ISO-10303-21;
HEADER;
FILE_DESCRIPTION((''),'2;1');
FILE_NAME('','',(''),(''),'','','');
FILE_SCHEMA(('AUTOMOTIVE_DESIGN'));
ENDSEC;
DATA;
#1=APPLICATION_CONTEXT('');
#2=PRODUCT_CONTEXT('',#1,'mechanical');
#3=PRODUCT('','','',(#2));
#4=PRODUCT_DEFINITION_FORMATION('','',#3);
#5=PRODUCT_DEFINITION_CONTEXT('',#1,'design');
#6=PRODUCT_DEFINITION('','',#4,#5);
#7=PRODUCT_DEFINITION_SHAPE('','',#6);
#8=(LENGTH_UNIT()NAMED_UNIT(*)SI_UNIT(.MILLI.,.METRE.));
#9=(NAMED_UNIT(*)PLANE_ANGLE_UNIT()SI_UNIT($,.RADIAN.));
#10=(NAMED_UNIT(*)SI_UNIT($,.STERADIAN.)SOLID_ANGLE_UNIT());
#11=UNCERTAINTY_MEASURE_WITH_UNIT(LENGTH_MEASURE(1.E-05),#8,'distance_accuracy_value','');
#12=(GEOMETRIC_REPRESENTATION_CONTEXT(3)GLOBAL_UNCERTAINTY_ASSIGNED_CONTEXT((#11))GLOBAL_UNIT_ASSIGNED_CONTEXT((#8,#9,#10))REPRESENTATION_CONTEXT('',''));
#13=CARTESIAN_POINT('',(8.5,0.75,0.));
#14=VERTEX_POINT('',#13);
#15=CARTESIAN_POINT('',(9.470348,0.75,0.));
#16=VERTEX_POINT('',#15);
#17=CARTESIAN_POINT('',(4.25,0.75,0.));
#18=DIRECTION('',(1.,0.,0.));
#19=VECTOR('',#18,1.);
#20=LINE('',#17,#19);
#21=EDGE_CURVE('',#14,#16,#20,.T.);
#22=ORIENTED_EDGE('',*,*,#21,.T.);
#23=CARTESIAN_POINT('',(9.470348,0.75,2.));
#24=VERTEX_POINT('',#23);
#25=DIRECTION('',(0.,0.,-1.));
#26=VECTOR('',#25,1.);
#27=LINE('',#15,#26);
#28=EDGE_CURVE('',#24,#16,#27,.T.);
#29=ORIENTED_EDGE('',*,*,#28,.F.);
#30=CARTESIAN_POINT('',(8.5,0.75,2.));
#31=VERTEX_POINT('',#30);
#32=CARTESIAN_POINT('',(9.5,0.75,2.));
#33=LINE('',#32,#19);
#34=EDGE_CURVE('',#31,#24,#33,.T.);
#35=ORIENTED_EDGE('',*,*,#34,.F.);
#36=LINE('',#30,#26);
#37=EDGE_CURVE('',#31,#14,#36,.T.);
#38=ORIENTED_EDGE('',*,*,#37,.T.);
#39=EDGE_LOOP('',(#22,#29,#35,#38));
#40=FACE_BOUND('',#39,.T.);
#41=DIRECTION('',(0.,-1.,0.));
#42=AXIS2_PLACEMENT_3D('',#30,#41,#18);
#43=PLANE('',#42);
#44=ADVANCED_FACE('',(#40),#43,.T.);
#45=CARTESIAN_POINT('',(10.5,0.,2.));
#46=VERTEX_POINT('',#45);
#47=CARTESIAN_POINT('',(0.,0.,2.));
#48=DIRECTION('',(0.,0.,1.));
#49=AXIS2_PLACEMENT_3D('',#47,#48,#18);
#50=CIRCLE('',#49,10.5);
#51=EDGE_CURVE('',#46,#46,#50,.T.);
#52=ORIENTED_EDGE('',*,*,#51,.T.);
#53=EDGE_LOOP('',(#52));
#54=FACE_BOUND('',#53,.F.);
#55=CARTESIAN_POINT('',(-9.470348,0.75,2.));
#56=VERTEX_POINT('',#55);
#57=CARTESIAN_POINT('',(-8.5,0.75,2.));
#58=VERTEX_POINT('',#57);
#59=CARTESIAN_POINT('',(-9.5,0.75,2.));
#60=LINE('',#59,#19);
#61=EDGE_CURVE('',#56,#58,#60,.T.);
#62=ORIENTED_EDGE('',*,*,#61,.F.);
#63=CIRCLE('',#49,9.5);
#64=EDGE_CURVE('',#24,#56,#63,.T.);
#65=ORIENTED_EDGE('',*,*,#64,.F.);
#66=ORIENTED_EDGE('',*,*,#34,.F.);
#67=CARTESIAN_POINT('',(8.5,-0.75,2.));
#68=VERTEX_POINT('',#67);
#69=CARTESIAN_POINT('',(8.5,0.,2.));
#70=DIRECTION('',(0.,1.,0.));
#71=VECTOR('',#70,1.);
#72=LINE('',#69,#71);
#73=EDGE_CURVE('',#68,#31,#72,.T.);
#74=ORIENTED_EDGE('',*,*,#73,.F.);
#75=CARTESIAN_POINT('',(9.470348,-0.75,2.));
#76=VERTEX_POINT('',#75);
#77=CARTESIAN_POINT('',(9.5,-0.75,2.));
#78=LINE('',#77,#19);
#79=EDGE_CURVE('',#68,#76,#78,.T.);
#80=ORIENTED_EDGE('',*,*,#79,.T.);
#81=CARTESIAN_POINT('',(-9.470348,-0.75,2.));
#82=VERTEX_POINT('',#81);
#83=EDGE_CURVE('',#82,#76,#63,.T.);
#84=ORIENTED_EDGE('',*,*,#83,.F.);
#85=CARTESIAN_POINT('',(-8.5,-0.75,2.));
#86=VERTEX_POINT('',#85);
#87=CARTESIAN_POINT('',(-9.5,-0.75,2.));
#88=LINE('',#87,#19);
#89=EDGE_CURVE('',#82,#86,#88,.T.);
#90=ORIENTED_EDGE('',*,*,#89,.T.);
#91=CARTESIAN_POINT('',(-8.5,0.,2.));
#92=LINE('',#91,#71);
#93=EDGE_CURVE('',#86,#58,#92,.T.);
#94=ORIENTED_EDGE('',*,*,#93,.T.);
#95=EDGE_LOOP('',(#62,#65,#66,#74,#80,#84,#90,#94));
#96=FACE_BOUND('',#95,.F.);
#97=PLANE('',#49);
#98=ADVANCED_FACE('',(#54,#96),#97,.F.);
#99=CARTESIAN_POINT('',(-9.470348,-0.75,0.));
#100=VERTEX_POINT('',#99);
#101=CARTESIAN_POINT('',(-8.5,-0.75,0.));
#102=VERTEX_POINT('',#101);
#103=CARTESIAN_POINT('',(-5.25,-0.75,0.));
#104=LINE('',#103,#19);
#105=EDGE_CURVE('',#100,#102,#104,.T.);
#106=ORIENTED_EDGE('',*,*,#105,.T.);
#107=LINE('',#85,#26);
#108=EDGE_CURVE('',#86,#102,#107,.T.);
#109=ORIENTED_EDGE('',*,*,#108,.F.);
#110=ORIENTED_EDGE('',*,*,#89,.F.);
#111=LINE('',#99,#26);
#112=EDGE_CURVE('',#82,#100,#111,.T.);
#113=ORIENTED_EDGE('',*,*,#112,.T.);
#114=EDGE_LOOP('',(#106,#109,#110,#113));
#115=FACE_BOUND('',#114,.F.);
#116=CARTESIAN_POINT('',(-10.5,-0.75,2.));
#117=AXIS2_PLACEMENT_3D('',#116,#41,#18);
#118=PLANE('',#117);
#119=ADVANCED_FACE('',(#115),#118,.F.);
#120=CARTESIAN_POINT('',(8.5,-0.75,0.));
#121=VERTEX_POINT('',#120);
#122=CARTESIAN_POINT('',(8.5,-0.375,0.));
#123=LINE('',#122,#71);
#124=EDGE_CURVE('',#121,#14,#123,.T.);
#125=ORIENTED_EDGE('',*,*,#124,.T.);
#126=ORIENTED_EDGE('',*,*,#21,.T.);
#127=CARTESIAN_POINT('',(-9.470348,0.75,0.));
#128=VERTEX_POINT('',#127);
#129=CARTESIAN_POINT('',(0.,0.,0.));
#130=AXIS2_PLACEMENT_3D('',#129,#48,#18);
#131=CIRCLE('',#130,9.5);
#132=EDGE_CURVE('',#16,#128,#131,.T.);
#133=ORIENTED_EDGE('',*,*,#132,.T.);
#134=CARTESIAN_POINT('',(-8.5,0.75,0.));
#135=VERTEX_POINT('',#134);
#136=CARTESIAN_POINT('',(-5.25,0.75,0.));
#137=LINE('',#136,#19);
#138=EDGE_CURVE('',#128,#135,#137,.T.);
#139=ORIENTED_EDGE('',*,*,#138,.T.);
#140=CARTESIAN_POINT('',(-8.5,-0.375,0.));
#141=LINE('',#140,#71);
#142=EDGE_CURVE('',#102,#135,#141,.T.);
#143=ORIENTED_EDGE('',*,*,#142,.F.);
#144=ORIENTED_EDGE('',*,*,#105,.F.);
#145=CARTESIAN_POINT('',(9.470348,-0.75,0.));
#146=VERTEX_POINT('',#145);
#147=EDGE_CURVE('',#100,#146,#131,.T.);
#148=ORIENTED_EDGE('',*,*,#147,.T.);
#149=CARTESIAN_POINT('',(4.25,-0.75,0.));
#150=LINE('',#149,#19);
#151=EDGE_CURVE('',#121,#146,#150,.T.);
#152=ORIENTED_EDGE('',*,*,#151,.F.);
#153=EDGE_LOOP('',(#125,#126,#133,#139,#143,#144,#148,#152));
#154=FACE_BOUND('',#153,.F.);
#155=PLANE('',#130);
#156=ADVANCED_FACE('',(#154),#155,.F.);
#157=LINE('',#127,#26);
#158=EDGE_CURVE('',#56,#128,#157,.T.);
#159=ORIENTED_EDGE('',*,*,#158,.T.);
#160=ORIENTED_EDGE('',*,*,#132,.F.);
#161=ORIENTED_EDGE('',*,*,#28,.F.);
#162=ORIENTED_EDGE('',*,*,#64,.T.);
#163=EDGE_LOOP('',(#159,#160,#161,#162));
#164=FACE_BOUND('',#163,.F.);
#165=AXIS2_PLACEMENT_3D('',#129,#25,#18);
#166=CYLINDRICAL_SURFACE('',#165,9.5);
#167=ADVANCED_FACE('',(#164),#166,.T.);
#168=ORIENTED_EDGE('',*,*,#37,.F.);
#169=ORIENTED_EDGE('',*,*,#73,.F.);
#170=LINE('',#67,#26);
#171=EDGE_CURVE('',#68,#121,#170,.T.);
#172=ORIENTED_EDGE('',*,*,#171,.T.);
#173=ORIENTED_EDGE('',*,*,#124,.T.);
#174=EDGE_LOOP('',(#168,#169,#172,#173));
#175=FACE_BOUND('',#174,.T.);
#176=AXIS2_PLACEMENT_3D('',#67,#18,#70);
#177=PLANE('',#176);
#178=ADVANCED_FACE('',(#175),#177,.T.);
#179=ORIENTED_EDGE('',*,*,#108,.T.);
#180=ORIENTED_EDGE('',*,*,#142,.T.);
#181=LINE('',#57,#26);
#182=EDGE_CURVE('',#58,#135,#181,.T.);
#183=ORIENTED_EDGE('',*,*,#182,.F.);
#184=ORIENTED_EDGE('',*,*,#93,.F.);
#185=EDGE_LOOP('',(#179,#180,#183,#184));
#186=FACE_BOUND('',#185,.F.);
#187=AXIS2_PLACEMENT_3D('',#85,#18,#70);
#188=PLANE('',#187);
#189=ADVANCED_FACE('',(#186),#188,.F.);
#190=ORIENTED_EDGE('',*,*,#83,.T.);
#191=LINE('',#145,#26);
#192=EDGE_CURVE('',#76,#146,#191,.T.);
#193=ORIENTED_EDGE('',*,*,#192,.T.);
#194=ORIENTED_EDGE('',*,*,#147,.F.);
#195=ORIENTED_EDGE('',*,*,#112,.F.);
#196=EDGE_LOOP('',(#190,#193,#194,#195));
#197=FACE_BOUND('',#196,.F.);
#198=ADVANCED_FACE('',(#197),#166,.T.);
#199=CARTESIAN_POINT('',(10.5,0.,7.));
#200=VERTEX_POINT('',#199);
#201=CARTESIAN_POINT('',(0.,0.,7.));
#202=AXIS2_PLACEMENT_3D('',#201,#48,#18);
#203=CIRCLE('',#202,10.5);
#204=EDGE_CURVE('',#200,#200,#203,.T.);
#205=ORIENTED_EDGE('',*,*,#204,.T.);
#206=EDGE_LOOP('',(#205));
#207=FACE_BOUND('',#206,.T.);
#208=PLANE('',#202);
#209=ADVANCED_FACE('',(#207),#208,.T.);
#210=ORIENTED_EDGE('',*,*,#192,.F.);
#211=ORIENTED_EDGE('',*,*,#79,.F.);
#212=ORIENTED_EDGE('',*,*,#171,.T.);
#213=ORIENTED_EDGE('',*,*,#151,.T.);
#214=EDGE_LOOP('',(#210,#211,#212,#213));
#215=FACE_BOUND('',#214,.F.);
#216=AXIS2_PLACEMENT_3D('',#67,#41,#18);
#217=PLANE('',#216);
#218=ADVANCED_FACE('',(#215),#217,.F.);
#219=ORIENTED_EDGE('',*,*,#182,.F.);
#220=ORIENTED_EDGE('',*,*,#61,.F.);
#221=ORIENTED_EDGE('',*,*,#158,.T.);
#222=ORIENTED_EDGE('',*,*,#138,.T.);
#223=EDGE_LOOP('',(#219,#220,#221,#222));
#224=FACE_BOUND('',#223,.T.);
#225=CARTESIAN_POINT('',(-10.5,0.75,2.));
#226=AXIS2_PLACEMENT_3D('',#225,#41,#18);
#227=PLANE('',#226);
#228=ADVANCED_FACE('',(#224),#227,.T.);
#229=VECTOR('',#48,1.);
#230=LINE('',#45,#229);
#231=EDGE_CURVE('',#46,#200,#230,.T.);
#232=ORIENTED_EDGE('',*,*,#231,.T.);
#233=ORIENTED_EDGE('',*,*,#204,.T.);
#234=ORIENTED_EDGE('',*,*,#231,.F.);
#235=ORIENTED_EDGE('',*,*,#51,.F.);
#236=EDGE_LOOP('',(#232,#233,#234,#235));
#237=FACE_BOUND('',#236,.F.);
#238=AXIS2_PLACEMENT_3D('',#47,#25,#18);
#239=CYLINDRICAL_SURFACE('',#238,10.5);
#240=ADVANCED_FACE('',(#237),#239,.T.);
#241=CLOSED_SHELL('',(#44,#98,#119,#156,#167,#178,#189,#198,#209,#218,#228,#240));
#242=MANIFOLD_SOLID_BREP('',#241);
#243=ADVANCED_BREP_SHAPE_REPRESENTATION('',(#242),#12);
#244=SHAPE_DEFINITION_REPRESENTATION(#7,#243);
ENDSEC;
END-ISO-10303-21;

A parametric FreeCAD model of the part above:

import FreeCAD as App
import Part
import Sketcher
from FreeCAD import Vector
Q = App.Units.Quantity

doc = App.newDocument("Part")
body = doc.addObject("PartDesign::Body", "Body")

sketch1 = doc.addObject("Sketcher::SketchObject", "Sketch")
body.addObject(sketch1)
sketch1.AttachmentSupport = (doc.XY_Plane, [""])
sketch1.MapMode = "FlatFace"
sketch1.addGeometry(Part.Circle(Vector(0, 0, 0), Vector(0, 0, 1), 10), False)
sketch1.addConstraint(Sketcher.Constraint("Coincident", 0, 3, -1, 1))
sketch1.addConstraint(Sketcher.Constraint("Diameter", 0, Q("19 mm")))
pad1 = doc.addObject("PartDesign::Pad", "Pad")
body.addObject(pad1)
pad1.Profile = sketch1
pad1.Length = 2

sketch2 = doc.addObject("Sketcher::SketchObject", "Sketch001")
body.addObject(sketch2)
sketch2.AttachmentSupport = (doc.XY_Plane, [""])
sketch2.MapMode = "FlatFace"
sketch2.AttachmentOffset = App.Placement(Vector(0, 0, 2), App.Rotation())
sketch2.addGeometry(Part.LineSegment(Vector(8.5, 0.8, 0), Vector(8.5, -0.8, 0)), False)
sketch2.addGeometry(Part.LineSegment(Vector(8.5, -0.8, 0), Vector(10.5, -0.8, 0)), False)
sketch2.addGeometry(Part.LineSegment(Vector(10.5, -0.8, 0), Vector(10.5, 0.8, 0)), False)
sketch2.addGeometry(Part.LineSegment(Vector(10.5, 0.8, 0), Vector(8.5, 0.8, 0)), False)
sketch2.addGeometry(Part.LineSegment(Vector(-10.5, 0.8, 0), Vector(-10.5, -0.8, 0)), False)
sketch2.addGeometry(Part.LineSegment(Vector(-10.5, -0.8, 0), Vector(-8.5, -0.8, 0)), False)
sketch2.addGeometry(Part.LineSegment(Vector(-8.5, -0.8, 0), Vector(-8.5, 0.8, 0)), False)
sketch2.addGeometry(Part.LineSegment(Vector(-8.5, 0.8, 0), Vector(-10.5, 0.8, 0)), False)
sketch2.addConstraint(Sketcher.Constraint("Coincident", 0, 2, 1, 1))
sketch2.addConstraint(Sketcher.Constraint("Coincident", 1, 2, 2, 1))
sketch2.addConstraint(Sketcher.Constraint("Coincident", 2, 2, 3, 1))
sketch2.addConstraint(Sketcher.Constraint("Coincident", 3, 2, 0, 1))
sketch2.addConstraint(Sketcher.Constraint("Coincident", 4, 2, 5, 1))
sketch2.addConstraint(Sketcher.Constraint("Coincident", 5, 2, 6, 1))
sketch2.addConstraint(Sketcher.Constraint("Coincident", 6, 2, 7, 1))
sketch2.addConstraint(Sketcher.Constraint("Coincident", 7, 2, 4, 1))
sketch2.addConstraint(Sketcher.Constraint("Vertical", 0))
sketch2.addConstraint(Sketcher.Constraint("Horizontal", 1))
sketch2.addConstraint(Sketcher.Constraint("Vertical", 2))
sketch2.addConstraint(Sketcher.Constraint("Horizontal", 3))
sketch2.addConstraint(Sketcher.Constraint("Vertical", 4))
sketch2.addConstraint(Sketcher.Constraint("Horizontal", 5))
sketch2.addConstraint(Sketcher.Constraint("Vertical", 6))
sketch2.addConstraint(Sketcher.Constraint("Horizontal", 7))
sketch2.addConstraint(Sketcher.Constraint("Symmetric", 2, 2, 4, 2, -1, 1))
sketch2.addConstraint(Sketcher.Constraint("Symmetric", 0, 2, 6, 2, -1, 1))
sketch2.addConstraint(Sketcher.Constraint("Horizontal", 1, 2, 4, 2))
sketch2.addConstraint(Sketcher.Constraint("DistanceX", 1, 1, 1, 2, Q("2 mm")))
sketch2.addConstraint(Sketcher.Constraint("DistanceY", 0, 2, 0, 1, Q("1.5 mm")))
sketch2.addConstraint(Sketcher.Constraint("DistanceX", 4, 2, 0, 2, Q("19 mm")))
pocket1 = doc.addObject("PartDesign::Pocket", "Pocket")
body.addObject(pocket1)
pocket1.Profile = sketch2
pocket1.Length = 5

sketch3 = doc.addObject("Sketcher::SketchObject", "Sketch002")
body.addObject(sketch3)
sketch3.AttachmentSupport = (doc.XY_Plane, [""])
sketch3.MapMode = "FlatFace"
sketch3.AttachmentOffset = App.Placement(Vector(0, 0, 2), App.Rotation())
sketch3.addGeometry(Part.Circle(Vector(0, 0, 0), Vector(0, 0, 1), 10), False)
sketch3.addConstraint(Sketcher.Constraint("Coincident", 0, 3, -1, 1))
sketch3.addConstraint(Sketcher.Constraint("Diameter", 0, Q("21 mm")))
pad2 = doc.addObject("PartDesign::Pad", "Pad001")
body.addObject(pad2)
pad2.Profile = sketch3
pad2.Length = 5

doc.recompute()
